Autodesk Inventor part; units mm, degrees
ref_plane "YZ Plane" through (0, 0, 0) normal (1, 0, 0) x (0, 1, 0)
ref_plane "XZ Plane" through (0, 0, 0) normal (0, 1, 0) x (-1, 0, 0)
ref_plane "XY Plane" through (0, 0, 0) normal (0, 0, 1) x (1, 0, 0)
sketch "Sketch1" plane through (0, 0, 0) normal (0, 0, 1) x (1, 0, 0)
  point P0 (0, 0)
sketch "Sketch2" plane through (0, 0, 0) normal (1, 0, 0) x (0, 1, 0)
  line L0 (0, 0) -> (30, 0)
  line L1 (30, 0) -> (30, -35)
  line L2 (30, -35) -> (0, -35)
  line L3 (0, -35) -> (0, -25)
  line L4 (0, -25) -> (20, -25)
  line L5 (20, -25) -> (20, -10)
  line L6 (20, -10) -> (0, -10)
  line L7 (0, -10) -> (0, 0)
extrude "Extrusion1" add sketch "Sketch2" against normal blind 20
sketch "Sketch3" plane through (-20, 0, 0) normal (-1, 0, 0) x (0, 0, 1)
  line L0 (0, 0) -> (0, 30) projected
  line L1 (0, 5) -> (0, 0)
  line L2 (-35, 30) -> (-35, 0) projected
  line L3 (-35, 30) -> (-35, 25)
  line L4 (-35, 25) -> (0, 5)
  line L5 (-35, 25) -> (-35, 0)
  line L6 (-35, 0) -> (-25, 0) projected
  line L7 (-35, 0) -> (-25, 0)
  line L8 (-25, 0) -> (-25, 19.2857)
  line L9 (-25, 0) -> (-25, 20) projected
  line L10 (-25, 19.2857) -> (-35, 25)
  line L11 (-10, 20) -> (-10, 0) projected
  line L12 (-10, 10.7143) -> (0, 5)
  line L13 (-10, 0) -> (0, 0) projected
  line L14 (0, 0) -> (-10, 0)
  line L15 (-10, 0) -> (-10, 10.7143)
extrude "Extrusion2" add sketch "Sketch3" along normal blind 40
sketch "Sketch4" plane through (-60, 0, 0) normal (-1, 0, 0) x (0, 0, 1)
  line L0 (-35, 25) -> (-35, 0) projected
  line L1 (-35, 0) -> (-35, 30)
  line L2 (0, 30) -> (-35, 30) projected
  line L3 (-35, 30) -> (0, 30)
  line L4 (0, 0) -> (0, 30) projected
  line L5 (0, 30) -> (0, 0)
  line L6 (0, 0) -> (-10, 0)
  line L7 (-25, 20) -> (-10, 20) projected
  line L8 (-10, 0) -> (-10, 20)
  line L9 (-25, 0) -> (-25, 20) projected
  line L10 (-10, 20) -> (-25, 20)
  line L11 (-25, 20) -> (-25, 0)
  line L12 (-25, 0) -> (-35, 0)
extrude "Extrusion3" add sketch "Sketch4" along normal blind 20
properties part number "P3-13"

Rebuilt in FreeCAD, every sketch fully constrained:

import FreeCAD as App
import Part
import Sketcher

V = App.Vector


def add_polygon(sketch, points):
    """Adds a closed chain of lines whose ends are joined by coincident constraints."""
    first, n = sketch.GeometryCount, len(points)
    for a, b in zip(points, points[1:] + points[:1]):
        sketch.addGeometry(Part.LineSegment(App.Vector(*a, 0), App.Vector(*b, 0)), False)
    for i in range(n):
        sketch.addConstraint(Sketcher.Constraint("Coincident", first + i, 2, first + (i + 1) % n, 1))

doc = App.newDocument("Part")
body = doc.addObject("PartDesign::Body", "Body")

sketch1 = body.newObject("Sketcher::SketchObject", "Sketch")
sketch1.AttachmentSupport = (doc.getObject("YZ_Plane"), [""])
sketch1.MapMode = "FlatFace"
add_polygon(sketch1, [(30, 0), (0, 0), (0, -10), (20, -10), (20, -25), (0, -25), (0, -35), (30, -35)])
sketch1.addConstraint(Sketcher.Constraint("Horizontal", 0))
sketch1.addConstraint(Sketcher.Constraint("Vertical", 1))
sketch1.addConstraint(Sketcher.Constraint("Horizontal", 2))
sketch1.addConstraint(Sketcher.Constraint("Vertical", 3))
sketch1.addConstraint(Sketcher.Constraint("Horizontal", 4))
sketch1.addConstraint(Sketcher.Constraint("Vertical", 5))
sketch1.addConstraint(Sketcher.Constraint("Horizontal", 6))
sketch1.addConstraint(Sketcher.Constraint("Vertical", 7))
sketch1.addConstraint(Sketcher.Constraint("Coincident", 0, 2, -1, 1))
sketch1.addConstraint(Sketcher.Constraint("PointOnObject", 4, 2, -2))
sketch1.addConstraint(Sketcher.Constraint("Equal", 1, 5))
sketch1.addConstraint(Sketcher.Constraint("DistanceX", 0, 2, 0, 1, 30.0))
sketch1.addConstraint(Sketcher.Constraint("DistanceX", 2, 1, 2, 2, 20.0))
sketch1.addConstraint(Sketcher.Constraint("DistanceY", 1, 2, 1, 1, 10.0))
sketch1.addConstraint(Sketcher.Constraint("DistanceY", 3, 2, 3, 1, 15.0))
pad1 = body.newObject("PartDesign::Pad", "Pad")
pad1.Profile = sketch1
pad1.Length = 20
pad1.Reversed = True

sketch2 = body.newObject("Sketcher::SketchObject", "Sketch001")
sketch2.AttachmentSupport = (doc.getObject("YZ_Plane"), [""])
sketch2.MapMode = "FlatFace"
sketch2.AttachmentOffset = App.Placement(V(0, 0, -20), App.Rotation())
add_polygon(sketch2, [(0, -10), (0, 0), (5, 0), (10.7143, -10)])
add_polygon(sketch2, [(0, -25), (19.285711, -24.999994), (25, -35), (0, -35)])
sketch2.addConstraint(Sketcher.Constraint("Vertical", 0))
sketch2.addConstraint(Sketcher.Constraint("Horizontal", 1))
sketch2.addConstraint(Sketcher.Constraint("Horizontal", 3))
sketch2.addConstraint(Sketcher.Constraint("Horizontal", 4))
sketch2.addConstraint(Sketcher.Constraint("Horizontal", 6))
sketch2.addConstraint(Sketcher.Constraint("Vertical", 7))
sketch2.addConstraint(Sketcher.Constraint("Coincident", 0, 2, -1, 1))
sketch2.addConstraint(Sketcher.Constraint("PointOnObject", 6, 2, -2))
sketch2.addConstraint(Sketcher.Constraint("Parallel", 2, 5))
sketch2.addConstraint(Sketcher.Constraint("Equal", 0, 7))
sketch2.addConstraint(Sketcher.Constraint("DistanceX", 1, 1, 1, 2, 5.0))
sketch2.addConstraint(Sketcher.Constraint("DistanceX", 6, 2, 6, 1, 25.0))
sketch2.addConstraint(Sketcher.Constraint("DistanceY", 0, 1, 0, 2, 10.0))
sketch2.addConstraint(Sketcher.Constraint("DistanceY", 4, 2, -1, 1, 25.0))
sketch2.addConstraint(Sketcher.Constraint("DistanceX", 3, 2, 3, 1, 10.7143))
pad2 = body.newObject("PartDesign::Pad", "Pad001")
pad2.Profile = sketch2
pad2.Length = 40
pad2.Reversed = True

sketch3 = body.newObject("Sketcher::SketchObject", "Sketch002")
sketch3.AttachmentSupport = (doc.getObject("YZ_Plane"), [""])
sketch3.MapMode = "FlatFace"
sketch3.AttachmentOffset = App.Placement(V(0, 0, -60), App.Rotation())
add_polygon(sketch3, [(30, -35), (0, -35), (0, -25), (20, -25), (20, -10), (0, -10), (0, 0), (30, 0)])
sketch3.addConstraint(Sketcher.Constraint("Horizontal", 0))
sketch3.addConstraint(Sketcher.Constraint("Vertical", 1))
sketch3.addConstraint(Sketcher.Constraint("Horizontal", 2))
sketch3.addConstraint(Sketcher.Constraint("Vertical", 3))
sketch3.addConstraint(Sketcher.Constraint("Horizontal", 4))
sketch3.addConstraint(Sketcher.Constraint("Vertical", 5))
sketch3.addConstraint(Sketcher.Constraint("Horizontal", 6))
sketch3.addConstraint(Sketcher.Constraint("Vertical", 7))
sketch3.addConstraint(Sketcher.Constraint("Coincident", 5, 2, -1, 1))
sketch3.addConstraint(Sketcher.Constraint("PointOnObject", 0, 2, -2))
sketch3.addConstraint(Sketcher.Constraint("Equal", 1, 5))
sketch3.addConstraint(Sketcher.Constraint("DistanceX", 0, 2, 0, 1, 30.0))
sketch3.addConstraint(Sketcher.Constraint("DistanceX", 2, 1, 2, 2, 20.0))
sketch3.addConstraint(Sketcher.Constraint("DistanceY", 1, 1, 1, 2, 10.0))
sketch3.addConstraint(Sketcher.Constraint("DistanceY", 3, 1, 3, 2, 15.0))
pad3 = body.newObject("PartDesign::Pad", "Pad002")
pad3.Profile = sketch3
pad3.Length = 20
pad3.Reversed = True

doc.recompute()
